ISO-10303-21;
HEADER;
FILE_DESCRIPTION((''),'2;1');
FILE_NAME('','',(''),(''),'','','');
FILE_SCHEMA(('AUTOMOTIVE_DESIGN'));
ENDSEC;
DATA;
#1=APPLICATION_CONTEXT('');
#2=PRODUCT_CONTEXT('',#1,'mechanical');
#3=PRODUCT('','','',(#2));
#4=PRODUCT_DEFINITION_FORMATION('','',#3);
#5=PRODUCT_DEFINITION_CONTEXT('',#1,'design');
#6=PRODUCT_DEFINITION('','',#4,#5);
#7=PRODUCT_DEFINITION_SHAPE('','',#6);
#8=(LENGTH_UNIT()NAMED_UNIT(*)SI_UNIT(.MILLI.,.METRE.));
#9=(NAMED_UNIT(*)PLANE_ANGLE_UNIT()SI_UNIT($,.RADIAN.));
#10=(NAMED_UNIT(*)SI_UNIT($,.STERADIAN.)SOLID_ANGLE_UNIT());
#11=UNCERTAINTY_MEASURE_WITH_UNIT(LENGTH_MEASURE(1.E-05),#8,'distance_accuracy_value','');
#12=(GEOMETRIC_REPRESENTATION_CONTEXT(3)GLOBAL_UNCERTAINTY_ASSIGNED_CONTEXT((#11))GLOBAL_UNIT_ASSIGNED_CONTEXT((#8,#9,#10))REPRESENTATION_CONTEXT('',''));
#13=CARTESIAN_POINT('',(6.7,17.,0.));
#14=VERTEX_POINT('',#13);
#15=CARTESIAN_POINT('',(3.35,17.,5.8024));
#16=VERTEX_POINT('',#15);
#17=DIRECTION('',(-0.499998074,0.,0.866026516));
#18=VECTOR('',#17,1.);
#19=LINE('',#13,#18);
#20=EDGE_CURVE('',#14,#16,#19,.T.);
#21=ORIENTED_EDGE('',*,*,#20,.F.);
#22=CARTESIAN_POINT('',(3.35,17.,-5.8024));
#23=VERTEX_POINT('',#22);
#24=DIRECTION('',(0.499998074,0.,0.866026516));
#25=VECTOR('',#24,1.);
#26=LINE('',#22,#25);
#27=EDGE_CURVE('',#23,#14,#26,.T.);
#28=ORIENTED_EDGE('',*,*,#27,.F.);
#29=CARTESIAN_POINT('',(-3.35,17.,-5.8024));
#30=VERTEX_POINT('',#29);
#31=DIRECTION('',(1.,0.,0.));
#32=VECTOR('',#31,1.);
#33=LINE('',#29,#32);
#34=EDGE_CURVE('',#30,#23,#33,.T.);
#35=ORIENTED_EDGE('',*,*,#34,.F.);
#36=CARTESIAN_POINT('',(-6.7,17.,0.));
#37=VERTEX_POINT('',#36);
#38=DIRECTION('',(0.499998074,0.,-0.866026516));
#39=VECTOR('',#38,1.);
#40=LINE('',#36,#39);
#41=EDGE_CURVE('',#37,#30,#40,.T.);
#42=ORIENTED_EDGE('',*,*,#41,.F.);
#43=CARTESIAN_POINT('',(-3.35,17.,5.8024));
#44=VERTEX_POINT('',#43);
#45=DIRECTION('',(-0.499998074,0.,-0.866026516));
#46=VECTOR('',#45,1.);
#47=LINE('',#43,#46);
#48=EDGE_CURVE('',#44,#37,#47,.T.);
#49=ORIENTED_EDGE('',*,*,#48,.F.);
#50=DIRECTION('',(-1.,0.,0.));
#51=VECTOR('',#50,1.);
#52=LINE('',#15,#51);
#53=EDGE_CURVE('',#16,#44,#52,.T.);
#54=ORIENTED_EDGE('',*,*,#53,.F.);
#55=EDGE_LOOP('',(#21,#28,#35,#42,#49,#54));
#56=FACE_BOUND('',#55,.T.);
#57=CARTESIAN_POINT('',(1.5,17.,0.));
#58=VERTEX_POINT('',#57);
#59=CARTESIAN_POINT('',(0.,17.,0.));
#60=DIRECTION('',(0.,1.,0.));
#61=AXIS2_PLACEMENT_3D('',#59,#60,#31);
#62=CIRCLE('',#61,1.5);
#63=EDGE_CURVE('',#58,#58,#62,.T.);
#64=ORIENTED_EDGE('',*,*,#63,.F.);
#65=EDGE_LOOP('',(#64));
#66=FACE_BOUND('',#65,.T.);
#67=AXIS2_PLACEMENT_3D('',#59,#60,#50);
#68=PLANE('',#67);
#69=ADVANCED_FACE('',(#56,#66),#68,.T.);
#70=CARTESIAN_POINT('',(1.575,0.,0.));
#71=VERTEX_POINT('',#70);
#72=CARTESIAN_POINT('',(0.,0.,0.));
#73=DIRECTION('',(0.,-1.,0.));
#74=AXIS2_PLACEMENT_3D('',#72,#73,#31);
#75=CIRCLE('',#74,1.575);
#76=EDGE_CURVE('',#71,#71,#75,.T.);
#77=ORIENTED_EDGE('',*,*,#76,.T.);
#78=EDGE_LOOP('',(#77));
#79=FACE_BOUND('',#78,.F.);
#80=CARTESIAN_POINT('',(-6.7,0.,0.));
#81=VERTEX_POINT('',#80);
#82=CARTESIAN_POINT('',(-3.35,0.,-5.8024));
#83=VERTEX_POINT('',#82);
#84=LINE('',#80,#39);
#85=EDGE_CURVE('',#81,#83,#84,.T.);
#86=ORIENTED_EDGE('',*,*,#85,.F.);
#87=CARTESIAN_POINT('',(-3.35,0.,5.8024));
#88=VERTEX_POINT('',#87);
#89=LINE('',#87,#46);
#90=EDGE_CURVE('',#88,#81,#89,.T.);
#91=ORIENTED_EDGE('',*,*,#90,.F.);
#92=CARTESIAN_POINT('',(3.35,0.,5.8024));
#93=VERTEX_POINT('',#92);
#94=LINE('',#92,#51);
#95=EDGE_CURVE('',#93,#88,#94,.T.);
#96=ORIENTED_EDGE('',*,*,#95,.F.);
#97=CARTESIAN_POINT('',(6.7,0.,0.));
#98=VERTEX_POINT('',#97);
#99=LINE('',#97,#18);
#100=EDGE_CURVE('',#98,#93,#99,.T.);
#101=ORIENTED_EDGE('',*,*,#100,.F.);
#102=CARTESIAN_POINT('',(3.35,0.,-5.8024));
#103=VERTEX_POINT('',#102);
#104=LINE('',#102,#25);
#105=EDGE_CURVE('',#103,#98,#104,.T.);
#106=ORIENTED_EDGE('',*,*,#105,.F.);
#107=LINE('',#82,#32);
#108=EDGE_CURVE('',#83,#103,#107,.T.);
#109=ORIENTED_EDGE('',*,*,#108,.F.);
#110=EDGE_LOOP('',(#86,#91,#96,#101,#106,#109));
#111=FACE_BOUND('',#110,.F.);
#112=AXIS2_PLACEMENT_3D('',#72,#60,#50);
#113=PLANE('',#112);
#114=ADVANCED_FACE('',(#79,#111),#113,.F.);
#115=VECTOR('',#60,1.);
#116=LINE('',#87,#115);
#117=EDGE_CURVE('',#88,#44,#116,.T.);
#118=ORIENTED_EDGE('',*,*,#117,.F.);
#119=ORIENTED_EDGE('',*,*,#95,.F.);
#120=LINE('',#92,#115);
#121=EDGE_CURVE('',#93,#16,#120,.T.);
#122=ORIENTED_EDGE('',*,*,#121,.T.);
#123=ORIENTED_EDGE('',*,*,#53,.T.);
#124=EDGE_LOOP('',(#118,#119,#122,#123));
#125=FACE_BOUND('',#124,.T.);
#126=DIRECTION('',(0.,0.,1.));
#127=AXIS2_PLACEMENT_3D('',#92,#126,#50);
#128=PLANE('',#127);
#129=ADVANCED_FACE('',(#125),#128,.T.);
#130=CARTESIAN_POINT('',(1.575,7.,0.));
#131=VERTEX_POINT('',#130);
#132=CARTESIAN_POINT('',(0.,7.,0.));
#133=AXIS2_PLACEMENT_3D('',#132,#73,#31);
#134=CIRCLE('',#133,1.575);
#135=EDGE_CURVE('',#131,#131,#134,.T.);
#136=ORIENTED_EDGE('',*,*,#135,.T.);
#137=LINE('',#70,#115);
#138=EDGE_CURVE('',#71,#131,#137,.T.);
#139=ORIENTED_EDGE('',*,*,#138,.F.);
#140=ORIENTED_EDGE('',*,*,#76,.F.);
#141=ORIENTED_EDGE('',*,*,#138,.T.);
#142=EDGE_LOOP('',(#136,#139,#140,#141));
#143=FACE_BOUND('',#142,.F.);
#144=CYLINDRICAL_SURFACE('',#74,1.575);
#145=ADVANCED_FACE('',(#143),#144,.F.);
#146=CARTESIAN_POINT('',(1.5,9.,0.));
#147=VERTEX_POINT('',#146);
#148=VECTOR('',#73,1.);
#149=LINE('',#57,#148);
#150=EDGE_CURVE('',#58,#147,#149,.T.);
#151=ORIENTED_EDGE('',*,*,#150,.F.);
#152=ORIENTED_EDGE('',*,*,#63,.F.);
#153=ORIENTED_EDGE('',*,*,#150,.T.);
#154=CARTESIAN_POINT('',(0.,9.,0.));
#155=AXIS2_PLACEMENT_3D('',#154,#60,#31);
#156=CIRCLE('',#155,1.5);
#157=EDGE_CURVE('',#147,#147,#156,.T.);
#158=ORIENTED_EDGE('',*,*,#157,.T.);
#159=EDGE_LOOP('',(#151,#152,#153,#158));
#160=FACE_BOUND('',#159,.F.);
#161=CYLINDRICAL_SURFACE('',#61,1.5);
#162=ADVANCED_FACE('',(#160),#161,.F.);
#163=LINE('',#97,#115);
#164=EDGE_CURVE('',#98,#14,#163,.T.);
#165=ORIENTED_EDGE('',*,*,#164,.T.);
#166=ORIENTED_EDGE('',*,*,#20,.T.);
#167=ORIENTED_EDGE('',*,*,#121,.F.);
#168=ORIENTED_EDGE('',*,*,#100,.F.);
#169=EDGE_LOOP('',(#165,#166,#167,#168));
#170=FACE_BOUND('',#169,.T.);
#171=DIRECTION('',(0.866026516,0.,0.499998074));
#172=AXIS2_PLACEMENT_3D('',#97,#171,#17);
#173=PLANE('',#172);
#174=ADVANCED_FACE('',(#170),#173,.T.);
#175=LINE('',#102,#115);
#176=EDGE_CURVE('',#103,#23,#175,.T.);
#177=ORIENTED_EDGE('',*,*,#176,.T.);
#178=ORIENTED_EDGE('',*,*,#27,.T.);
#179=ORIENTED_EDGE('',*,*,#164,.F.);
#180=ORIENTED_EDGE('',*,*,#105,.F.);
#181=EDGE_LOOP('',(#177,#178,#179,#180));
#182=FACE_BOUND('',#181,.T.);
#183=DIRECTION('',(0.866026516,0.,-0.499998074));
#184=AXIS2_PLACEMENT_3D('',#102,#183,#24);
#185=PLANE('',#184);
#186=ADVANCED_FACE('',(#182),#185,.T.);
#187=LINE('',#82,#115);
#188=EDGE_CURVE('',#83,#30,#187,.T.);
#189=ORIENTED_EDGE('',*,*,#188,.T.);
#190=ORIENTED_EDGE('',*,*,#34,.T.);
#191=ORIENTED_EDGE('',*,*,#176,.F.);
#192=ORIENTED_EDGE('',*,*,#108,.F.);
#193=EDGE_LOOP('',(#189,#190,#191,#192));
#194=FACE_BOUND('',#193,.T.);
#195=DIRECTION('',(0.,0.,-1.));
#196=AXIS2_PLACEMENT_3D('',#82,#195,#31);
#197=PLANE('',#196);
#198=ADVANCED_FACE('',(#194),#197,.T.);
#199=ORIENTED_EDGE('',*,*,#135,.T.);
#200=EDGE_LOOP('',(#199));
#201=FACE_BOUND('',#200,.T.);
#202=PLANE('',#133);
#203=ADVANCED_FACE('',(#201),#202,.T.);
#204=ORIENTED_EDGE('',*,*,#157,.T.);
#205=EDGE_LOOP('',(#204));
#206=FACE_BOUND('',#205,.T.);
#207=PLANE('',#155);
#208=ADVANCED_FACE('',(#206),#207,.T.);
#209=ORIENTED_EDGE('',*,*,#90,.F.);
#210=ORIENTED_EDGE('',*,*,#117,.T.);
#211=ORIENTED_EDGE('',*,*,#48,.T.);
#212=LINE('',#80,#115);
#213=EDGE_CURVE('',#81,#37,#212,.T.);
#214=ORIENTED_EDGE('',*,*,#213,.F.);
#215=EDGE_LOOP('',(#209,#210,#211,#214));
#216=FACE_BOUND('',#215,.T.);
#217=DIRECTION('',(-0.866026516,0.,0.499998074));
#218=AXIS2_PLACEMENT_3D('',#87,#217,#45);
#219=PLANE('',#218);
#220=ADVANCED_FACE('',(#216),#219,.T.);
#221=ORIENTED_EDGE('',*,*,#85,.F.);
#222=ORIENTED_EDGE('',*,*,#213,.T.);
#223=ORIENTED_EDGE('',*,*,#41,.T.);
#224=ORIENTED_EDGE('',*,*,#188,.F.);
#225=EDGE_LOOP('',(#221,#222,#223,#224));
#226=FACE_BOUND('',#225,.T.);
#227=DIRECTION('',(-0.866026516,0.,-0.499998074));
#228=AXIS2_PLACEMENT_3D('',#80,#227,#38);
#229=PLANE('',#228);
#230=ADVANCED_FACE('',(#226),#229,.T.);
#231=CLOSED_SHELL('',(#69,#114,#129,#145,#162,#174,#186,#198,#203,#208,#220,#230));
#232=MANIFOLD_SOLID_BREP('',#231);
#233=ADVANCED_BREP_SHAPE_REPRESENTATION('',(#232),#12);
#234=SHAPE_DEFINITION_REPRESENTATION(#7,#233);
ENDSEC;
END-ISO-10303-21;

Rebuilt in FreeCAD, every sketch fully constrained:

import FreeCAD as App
import Part
import Sketcher
from FreeCAD import Vector
Q = App.Units.Quantity

doc = App.newDocument("Part")
body = doc.addObject("PartDesign::Body", "Body")

# Sketch on XZ plane
sketch1 = doc.addObject("Sketcher::SketchObject", "Sketch")
body.addObject(sketch1)
sketch1.AttachmentSupport = (doc.XZ_Plane, [""])
sketch1.MapMode = "FlatFace"
sketch1.addGeometry([
    Part.LineSegment(Vector(-3.35, -5.8024, 0), Vector(-6.7, 0, 0)),  # 0
    Part.LineSegment(Vector(-6.7, 0, 0), Vector(-3.35, 5.8024, 0)),  # 1
    Part.LineSegment(Vector(-3.35, 5.8024, 0), Vector(3.35, 5.8024, 0)),  # 2
    Part.LineSegment(Vector(3.35, 5.8024, 0), Vector(6.7, 0, 0)),  # 3
    Part.LineSegment(Vector(6.7, 0, 0), Vector(3.35, -5.8024, 0)),  # 4
    Part.LineSegment(Vector(3.35, -5.8024, 0), Vector(-3.35, -5.8024, 0)),  # 5
], False)
sketch1.addConstraint([
    Sketcher.Constraint("Coincident", 0, 2, 1, 1),
    Sketcher.Constraint("Coincident", 1, 2, 2, 1),
    Sketcher.Constraint("Coincident", 2, 2, 3, 1),
    Sketcher.Constraint("Coincident", 3, 2, 4, 1),
    Sketcher.Constraint("Coincident", 4, 2, 5, 1),
    Sketcher.Constraint("Coincident", 5, 2, 0, 1),
    Sketcher.Constraint("Horizontal", 2),
    Sketcher.Constraint("Horizontal", 5),
    Sketcher.Constraint("Symmetric", 0, 2, 3, 2, -1, 1),
    Sketcher.Constraint("Symmetric", 1, 2, 4, 2, -1, 1),
    Sketcher.Constraint("PointOnObject", 0, 2, -1),
    Sketcher.Constraint("Parallel", 0, 3),
    Sketcher.Constraint("Vertical", 2, 2, 4, 2),
    Sketcher.Constraint("DistanceX", 2, 1, 2, 2, Q("6.7 mm")),
    Sketcher.Constraint("Distance", 0, Q("6.7 mm")),
    Sketcher.Constraint("DistanceX", 0, 2, -1, 1, Q("6.7 mm")),
])
pad1 = doc.addObject("PartDesign::Pad", "Pad")
body.addObject(pad1)
pad1.Profile = sketch1
pad1.Length = 17
pad1.Reversed = True

# Sketch on XZ plane
sketch2 = doc.addObject("Sketcher::SketchObject", "Sketch001")
body.addObject(sketch2)
sketch2.AttachmentSupport = (doc.XZ_Plane, [""])
sketch2.MapMode = "FlatFace"
sketch2.AttachmentOffset = App.Placement(Vector(0, 0, -17), App.Rotation())
sketch2.addGeometry(Part.Circle(Vector(0, 0, 0), Vector(0, 0, 1), 1.25), False)
sketch2.addConstraint([
    Sketcher.Constraint("Coincident", 0, 3, -1, 1),
    Sketcher.Constraint("Diameter", 0, Q("2.5 mm")),
])
pocket1 = doc.addObject("PartDesign::Pocket", "Pocket")
body.addObject(pocket1)
pocket1.Profile = sketch2
pocket1.Length = 8
pocket1.Reversed = True

# Sketch on XZ plane
sketch3 = doc.addObject("Sketcher::SketchObject", "Sketch002")
body.addObject(sketch3)
sketch3.AttachmentSupport = (doc.XZ_Plane, [""])
sketch3.MapMode = "FlatFace"
sketch3.AttachmentOffset = App.Placement(Vector(0, 0, -17), App.Rotation())
sketch3.addGeometry(Part.Circle(Vector(0, 0, 0), Vector(0, 0, 1), 1.5), False)
sketch3.addConstraint([
    Sketcher.Constraint("Coincident", 0, 3, -1, 1),
    Sketcher.Constraint("Diameter", 0, Q("3 mm")),
])
pocket2 = doc.addObject("PartDesign::Pocket", "Pocket001")
body.addObject(pocket2)
pocket2.Profile = sketch3
pocket2.Length = 8
pocket2.Reversed = True

# Sketch on XZ plane
sketch4 = doc.addObject("Sketcher::SketchObject", "Sketch003")
body.addObject(sketch4)
sketch4.AttachmentSupport = (doc.XZ_Plane, [""])
sketch4.MapMode = "FlatFace"
sketch4.addGeometry(Part.Circle(Vector(0, 0, 0), Vector(0, 0, 1), 1.575), False)
sketch4.addConstraint([
    Sketcher.Constraint("Coincident", 0, 3, -1, 1),
    Sketcher.Constraint("Diameter", 0, Q("3.15 mm")),
])
pocket3 = doc.addObject("PartDesign::Pocket", "Pocket002")
body.addObject(pocket3)
pocket3.Profile = sketch4
pocket3.Length = 7

doc.recompute()
